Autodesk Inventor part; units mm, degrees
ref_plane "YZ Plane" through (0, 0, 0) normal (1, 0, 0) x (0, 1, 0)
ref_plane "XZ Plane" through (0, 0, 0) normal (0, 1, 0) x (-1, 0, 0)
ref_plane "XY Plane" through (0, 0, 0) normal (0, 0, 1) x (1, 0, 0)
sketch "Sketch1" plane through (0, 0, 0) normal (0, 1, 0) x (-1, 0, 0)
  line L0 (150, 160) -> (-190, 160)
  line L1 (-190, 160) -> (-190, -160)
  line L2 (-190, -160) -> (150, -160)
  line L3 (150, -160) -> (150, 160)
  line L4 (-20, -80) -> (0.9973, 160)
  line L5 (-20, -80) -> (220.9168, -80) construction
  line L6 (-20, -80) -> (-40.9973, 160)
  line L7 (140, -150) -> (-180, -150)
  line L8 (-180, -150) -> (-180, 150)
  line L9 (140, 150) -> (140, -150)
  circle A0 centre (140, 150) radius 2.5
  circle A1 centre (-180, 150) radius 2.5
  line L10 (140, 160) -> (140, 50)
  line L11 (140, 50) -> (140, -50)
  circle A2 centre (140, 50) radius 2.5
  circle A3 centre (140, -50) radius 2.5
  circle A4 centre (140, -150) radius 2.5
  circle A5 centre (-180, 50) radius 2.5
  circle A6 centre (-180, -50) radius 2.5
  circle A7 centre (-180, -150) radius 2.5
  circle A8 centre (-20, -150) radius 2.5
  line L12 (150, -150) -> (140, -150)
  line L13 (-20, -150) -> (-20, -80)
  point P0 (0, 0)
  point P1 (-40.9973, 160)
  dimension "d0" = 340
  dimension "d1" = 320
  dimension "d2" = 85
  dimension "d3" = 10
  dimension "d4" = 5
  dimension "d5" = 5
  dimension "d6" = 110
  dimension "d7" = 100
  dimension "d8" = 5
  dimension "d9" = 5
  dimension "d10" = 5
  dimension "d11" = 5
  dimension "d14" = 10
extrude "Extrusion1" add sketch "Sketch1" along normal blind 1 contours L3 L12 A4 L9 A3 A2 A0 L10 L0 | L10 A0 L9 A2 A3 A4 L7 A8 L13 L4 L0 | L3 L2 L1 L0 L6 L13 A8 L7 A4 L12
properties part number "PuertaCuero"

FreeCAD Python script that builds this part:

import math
import FreeCAD as App
import Part
import Sketcher
Q = App.Units.Quantity


def add_polygon(sketch, points):
    """Adds a closed chain of lines whose ends are joined by coincident constraints."""
    first, n = sketch.GeometryCount, len(points)
    for a, b in zip(points, points[1:] + points[:1]):
        sketch.addGeometry(Part.LineSegment(App.Vector(*a, 0), App.Vector(*b, 0)), False)
    for i in range(n):
        sketch.addConstraint(Sketcher.Constraint("Coincident", first + i, 2, first + (i + 1) % n, 1))

doc = App.newDocument("Part")
body = doc.addObject("PartDesign::Body", "Body")

# Sketch on XZ plane
sketch1 = doc.addObject("Sketcher::SketchObject", "Sketch")
body.addObject(sketch1)
sketch1.AttachmentSupport = (doc.XZ_Plane, [""])
sketch1.MapMode = "FlatFace"
add_polygon(sketch1, [(-150, 160), (-0.9973, 160), (20, -80), (40.9973, 160), (190, 160), (190, -160), (-150, -160)])  # lines 0-6
sketch1.addGeometry(Part.Circle(App.Vector(-140, -150, 0), App.Vector(0, 0, 1), 2.5), False)  # 7
sketch1.addGeometry(Part.Circle(App.Vector(-140, -50, 0), App.Vector(0, 0, 1), 2.5), False)  # 8
sketch1.addGeometry(Part.Circle(App.Vector(-140, 50, 0), App.Vector(0, 0, 1), 2.5), False)  # 9
sketch1.addGeometry(Part.Circle(App.Vector(-140, 150, 0), App.Vector(0, 0, 1), 2.5), False)  # 10
sketch1.addGeometry(Part.Circle(App.Vector(20, -150, 0), App.Vector(0, 0, 1), 2.5), False)  # 11
sketch1.addGeometry(Part.ArcOfCircle(Part.Circle(App.Vector(180, -150, 0), App.Vector(0, 0, 1), 2.5), math.radians(90), math.radians(180)), False)  # 12
sketch1.addGeometry(Part.ArcOfCircle(Part.Circle(App.Vector(180, -150, 0), App.Vector(0, 0, 1), 2.5), math.radians(180), math.radians(450)), False)  # 13
sketch1.addGeometry(Part.ArcOfCircle(Part.Circle(App.Vector(180, -50, 0), App.Vector(0, 0, 1), 2.5), math.radians(-90), math.radians(90)), False)  # 14
sketch1.addGeometry(Part.ArcOfCircle(Part.Circle(App.Vector(180, -50, 0), App.Vector(0, 0, 1), 2.5), math.radians(90), math.radians(270)), False)  # 15
sketch1.addGeometry(Part.ArcOfCircle(Part.Circle(App.Vector(180, 50, 0), App.Vector(0, 0, 1), 2.5), math.radians(-90), math.radians(90)), False)  # 16
sketch1.addGeometry(Part.ArcOfCircle(Part.Circle(App.Vector(180, 50, 0), App.Vector(0, 0, 1), 2.5), math.radians(90), math.radians(270)), False)  # 17
sketch1.addGeometry(Part.Circle(App.Vector(180, 150, 0), App.Vector(0, 0, 1), 2.5), False)  # 18
sketch1.addConstraint([
    Sketcher.Constraint("Tangent", 12, 1, 13, 2),
    Sketcher.Constraint("Coincident", 13, 1, 12, 2),
    Sketcher.Constraint("Tangent", 14, 1, 15, 2),
    Sketcher.Constraint("Coincident", 15, 1, 14, 2),
    Sketcher.Constraint("Tangent", 16, 1, 17, 2),
    Sketcher.Constraint("Coincident", 17, 1, 16, 2),
    Sketcher.Constraint("Horizontal", 0),
    Sketcher.Constraint("Horizontal", 3),
    Sketcher.Constraint("Vertical", 4),
    Sketcher.Constraint("Horizontal", 5),
    Sketcher.Constraint("Vertical", 6),
    Sketcher.Constraint("Equal", 7, 8),
    Sketcher.Constraint("Equal", 8, 9),
    Sketcher.Constraint("Equal", 9, 10),
    Sketcher.Constraint("Equal", 10, 11),
    Sketcher.Constraint("Equal", 11, 12),
    Sketcher.Constraint("Equal", 13, 14),
    Sketcher.Constraint("Equal", 15, 16),
    Sketcher.Constraint("Equal", 17, 18),
    Sketcher.Constraint("Symmetric", 8, 3, 9, 3, -1),
    Sketcher.Constraint("Symmetric", 7, 3, 10, 3, -1),
    Sketcher.Constraint("Symmetric", 14, 3, 16, 3, -1),
    Sketcher.Constraint("Symmetric", 12, 3, 18, 3, -1),
    Sketcher.Constraint("Horizontal", 7, 3, 11, 3),
    Sketcher.Constraint("Horizontal", 11, 3, 12, 3),
    Sketcher.Constraint("Horizontal", 8, 3, 14, 3),
    Sketcher.Constraint("Horizontal", 0, 2, 2, 2),
    Sketcher.Constraint("Horizontal", 12, 3, 13, 1),
    Sketcher.Constraint("Vertical", 7, 3, 8, 3),
    Sketcher.Constraint("Vertical", 13, 3, 14, 3),
    Sketcher.Constraint("Vertical", 11, 3, 1, 2),
    Sketcher.Constraint("Vertical", 18, 3, 12, 1),
    Sketcher.Constraint("Vertical", 12, 1, 14, 1),
    Sketcher.Constraint("Vertical", 14, 1, 15, 1),
    Sketcher.Constraint("Vertical", 15, 1, 16, 1),
    Sketcher.Constraint("Vertical", 16, 1, 17, 1),
    Sketcher.Constraint("Equal", 0, 3),
    Sketcher.Constraint("Equal", 1, 2),
    Sketcher.Constraint("Diameter", 7, 5.0),
    Sketcher.Constraint("DistanceX", 5, 2, 5, 1, 340.0),
    Sketcher.Constraint("DistanceY", 4, 2, 4, 1, 320.0),
    Sketcher.Constraint("Angle", 1, Q("-85 deg")),
    Sketcher.Constraint("DistanceY", 7, 3, 8, 3, 100.0),
    Sketcher.Constraint("DistanceY", 8, 3, 9, 3, 100.0),
    Sketcher.Constraint("DistanceX", 7, 3, 12, 3, 320.0),
    Sketcher.Constraint("DistanceY", 10, 3, 0, 2, 10.0),
    Sketcher.Constraint("DistanceX", 18, 3, 3, 2, 10.0),
    Sketcher.Constraint("DistanceX", 7, 3, -1, 1, 140.0),
    Sketcher.Constraint("DistanceY", 1, 2, -1, 1, 80.0),
])
pad1 = doc.addObject("PartDesign::Pad", "Pad")
body.addObject(pad1)
pad1.Profile = sketch1
pad1.Length = 1
pad1.Reversed = True

doc.recompute()
